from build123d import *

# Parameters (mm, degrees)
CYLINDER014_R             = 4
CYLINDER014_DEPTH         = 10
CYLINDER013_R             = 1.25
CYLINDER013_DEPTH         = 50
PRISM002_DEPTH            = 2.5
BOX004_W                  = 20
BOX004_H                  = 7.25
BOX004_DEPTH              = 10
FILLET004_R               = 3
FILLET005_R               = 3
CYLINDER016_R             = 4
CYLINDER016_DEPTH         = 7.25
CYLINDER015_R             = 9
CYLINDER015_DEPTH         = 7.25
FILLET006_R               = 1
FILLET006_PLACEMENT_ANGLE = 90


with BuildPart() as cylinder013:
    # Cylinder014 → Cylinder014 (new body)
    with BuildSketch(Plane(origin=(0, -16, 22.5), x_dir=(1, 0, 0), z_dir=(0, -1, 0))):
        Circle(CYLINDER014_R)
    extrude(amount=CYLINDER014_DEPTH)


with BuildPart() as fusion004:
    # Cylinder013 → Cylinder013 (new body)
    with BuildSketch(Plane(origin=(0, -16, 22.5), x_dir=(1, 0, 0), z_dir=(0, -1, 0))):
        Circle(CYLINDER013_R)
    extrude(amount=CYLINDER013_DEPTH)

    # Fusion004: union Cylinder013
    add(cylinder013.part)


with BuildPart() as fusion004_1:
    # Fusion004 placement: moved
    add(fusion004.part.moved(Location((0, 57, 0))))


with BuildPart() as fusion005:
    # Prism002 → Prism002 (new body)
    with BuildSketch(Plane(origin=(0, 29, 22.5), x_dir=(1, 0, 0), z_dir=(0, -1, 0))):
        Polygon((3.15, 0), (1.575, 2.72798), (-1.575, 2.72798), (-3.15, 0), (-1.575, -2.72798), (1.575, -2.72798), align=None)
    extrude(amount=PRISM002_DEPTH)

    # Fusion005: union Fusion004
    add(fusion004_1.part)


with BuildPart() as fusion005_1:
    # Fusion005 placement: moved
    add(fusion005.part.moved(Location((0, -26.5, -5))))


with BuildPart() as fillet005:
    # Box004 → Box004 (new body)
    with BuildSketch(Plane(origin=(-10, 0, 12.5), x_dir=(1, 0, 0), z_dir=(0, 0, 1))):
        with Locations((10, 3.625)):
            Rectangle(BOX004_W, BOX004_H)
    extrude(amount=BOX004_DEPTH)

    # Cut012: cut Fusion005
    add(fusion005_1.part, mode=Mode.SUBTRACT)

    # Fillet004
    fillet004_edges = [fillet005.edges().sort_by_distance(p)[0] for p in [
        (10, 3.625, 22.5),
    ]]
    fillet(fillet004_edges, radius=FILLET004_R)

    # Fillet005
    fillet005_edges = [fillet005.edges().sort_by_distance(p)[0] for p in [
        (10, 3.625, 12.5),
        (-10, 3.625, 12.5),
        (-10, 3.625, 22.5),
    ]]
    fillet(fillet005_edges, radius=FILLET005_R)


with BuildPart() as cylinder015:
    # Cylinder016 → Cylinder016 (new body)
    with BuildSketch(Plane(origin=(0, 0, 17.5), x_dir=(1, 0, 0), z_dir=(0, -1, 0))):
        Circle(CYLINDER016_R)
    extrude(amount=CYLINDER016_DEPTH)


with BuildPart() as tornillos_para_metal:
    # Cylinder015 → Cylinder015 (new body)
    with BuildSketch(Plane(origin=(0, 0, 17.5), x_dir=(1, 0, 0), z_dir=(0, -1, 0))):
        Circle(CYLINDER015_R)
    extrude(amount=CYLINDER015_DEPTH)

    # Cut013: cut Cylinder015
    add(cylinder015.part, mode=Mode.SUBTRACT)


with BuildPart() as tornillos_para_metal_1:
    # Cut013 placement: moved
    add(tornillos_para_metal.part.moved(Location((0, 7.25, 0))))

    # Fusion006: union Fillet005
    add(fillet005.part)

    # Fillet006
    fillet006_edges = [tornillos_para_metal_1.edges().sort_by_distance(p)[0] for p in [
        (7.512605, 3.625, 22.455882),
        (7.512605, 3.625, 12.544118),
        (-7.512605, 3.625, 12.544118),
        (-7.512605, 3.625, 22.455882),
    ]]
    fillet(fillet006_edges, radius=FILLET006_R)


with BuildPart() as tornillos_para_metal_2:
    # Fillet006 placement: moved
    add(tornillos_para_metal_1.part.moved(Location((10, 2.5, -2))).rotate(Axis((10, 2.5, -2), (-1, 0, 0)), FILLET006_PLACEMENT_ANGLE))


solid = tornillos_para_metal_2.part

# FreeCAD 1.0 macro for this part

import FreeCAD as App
import Part
import Sketcher

V = App.Vector
Q = App.Units.Quantity


def edges_at(feature, points):
    """Names of the edges that pass closest to the given points."""
    edges = feature.Shape.Edges
    near = lambda p: min(range(len(edges)), key=lambda i: edges[i].distToShape(Part.Vertex(*p))[0])
    return sorted({f"Edge{near(p) + 1}" for p in points})


def add_polygon(sketch, points):
    """Adds a closed chain of lines whose ends are joined by coincident constraints."""
    first, n = sketch.GeometryCount, len(points)
    for a, b in zip(points, points[1:] + points[:1]):
        sketch.addGeometry(Part.LineSegment(App.Vector(*a, 0), App.Vector(*b, 0)), False)
    for i in range(n):
        sketch.addConstraint(Sketcher.Constraint("Coincident", first + i, 2, first + (i + 1) % n, 1))

doc = App.newDocument("Part")
params = doc.addObject("Spreadsheet::Sheet", "Params")
for row, (alias, value) in enumerate([
    ("sketch1_diameter", "8 mm"),
    ("pad1_length", "10 mm"),
    ("sketch2_diameter", "2.5 mm"),
    ("pad2_length", "50 mm"),
    ("sketch3_width", "3.15 mm"),
    ("pad3_length", "2.5 mm"),
    ("sketch4_width", "20 mm"),
    ("sketch4_height", "7.25 mm"),
    ("pad4_length", "10 mm"),
    ("fillet_radius", "3 mm"),
    ("fillet2_radius", "3 mm"),
    ("sketch5_diameter", "8 mm"),
    ("pad5_length", "7.25 mm"),
    ("sketch6_diameter", "18 mm"),
    ("pad6_length", "7.25 mm"),
    ("fillet3_radius", "1 mm"),
], start=1):
    params.set(f"A{row}", alias)
    params.set(f"B{row}", "=" + value)
    params.setAlias(f"B{row}", alias)

body = doc.addObject("PartDesign::Body", "Body")

# Sketch on XZ plane
sketch1 = body.newObject("Sketcher::SketchObject", "Sketch")
sketch1.AttachmentSupport = (doc.getObject("XZ_Plane"), [""])
sketch1.MapMode = "FlatFace"
sketch1.AttachmentOffset = App.Placement(V(0, 0, 16), App.Rotation())
sketch1.addGeometry(Part.Circle(V(0, 22.5, 0), V(0, 0, 1), 4), False)
sketch1.addConstraint(Sketcher.Constraint("PointOnObject", 0, 3, -2))
sketch1.addConstraint(Sketcher.Constraint("Diameter", 0, 8.0))
sketch1.addConstraint(Sketcher.Constraint("DistanceY", -1, 1, 0, 3, 22.5))
sketch1.setExpression("Constraints[1]", "Params.sketch1_diameter")
pad1 = body.newObject("PartDesign::Pad", "Pad")
pad1.Profile = sketch1
pad1.setExpression("Length", "Params.pad1_length")
body2 = doc.addObject("PartDesign::Body", "Body001")

# Sketch on XZ plane
sketch2 = body2.newObject("Sketcher::SketchObject", "Sketch001")
sketch2.AttachmentSupport = (doc.getObject("XZ_Plane001"), [""])
sketch2.MapMode = "FlatFace"
sketch2.AttachmentOffset = App.Placement(V(0, 0, 16), App.Rotation())
sketch2.addGeometry(Part.Circle(V(0, 22.5, 0), V(0, 0, 1), 1.25), False)
sketch2.addConstraint(Sketcher.Constraint("PointOnObject", 0, 3, -2))
sketch2.addConstraint(Sketcher.Constraint("Diameter", 0, 2.5))
sketch2.addConstraint(Sketcher.Constraint("DistanceY", -1, 1, 0, 3, 22.5))
sketch2.setExpression("Constraints[1]", "Params.sketch2_diameter")
pad2 = body2.newObject("PartDesign::Pad", "Pad001")
pad2.Profile = sketch2
pad2.setExpression("Length", "Params.pad2_length")
doc.recompute()

boolean = body2.newObject("PartDesign::Boolean", "Boolean")
boolean.Type = "Fuse"
boolean.addObjects([body])
body3 = doc.addObject("PartDesign::Body", "Body002")
doc.recompute()

body2.Placement = App.Placement(V(0, 57, 0), App.Rotation(V(0, 0, 1), 0))
boolean2 = body3.newObject("PartDesign::Boolean", "Boolean001")
boolean2.Type = "Fuse"
boolean2.addObjects([body2])
body4 = doc.addObject("PartDesign::Body", "Body003")

# Sketch on XZ plane
sketch3 = body4.newObject("Sketcher::SketchObject", "Sketch002")
sketch3.AttachmentSupport = (doc.getObject("XZ_Plane003"), [""])
sketch3.MapMode = "FlatFace"
sketch3.AttachmentOffset = App.Placement(V(0, 0, -29), App.Rotation())
add_polygon(sketch3, [(3.15, 22.5), (1.575, 25.22798), (-1.575, 25.22798), (-3.15, 22.5), (-1.575, 19.77202), (1.575, 19.77202)])  # lines 0-5
sketch3.addConstraint(Sketcher.Constraint("Horizontal", 1))
sketch3.addConstraint(Sketcher.Constraint("Horizontal", 4))
sketch3.addConstraint(Sketcher.Constraint("Symmetric", 2, 2, 5, 2, -2))
sketch3.addConstraint(Sketcher.Constraint("Parallel", 0, 3))
sketch3.addConstraint(Sketcher.Constraint("Parallel", 2, 5))
sketch3.addConstraint(Sketcher.Constraint("Vertical", 1, 2, 3, 2))
sketch3.addConstraint(Sketcher.Constraint("Vertical", 0, 2, 4, 2))
sketch3.addConstraint(Sketcher.Constraint("Angle", 0, Q("120 deg")))
sketch3.addConstraint(Sketcher.Constraint("DistanceX", 1, 2, 1, 1, 3.15))
sketch3.addConstraint(Sketcher.Constraint("DistanceY", -1, 1, 2, 2, 22.5))
sketch3.addConstraint(Sketcher.Constraint("DistanceX", 2, 2, 5, 2, 6.3))
sketch3.setExpression("Constraints[14]", "Params.sketch3_width")
pad3 = body4.newObject("PartDesign::Pad", "Pad002")
pad3.Profile = sketch3
pad3.setExpression("Length", "Params.pad3_length")
doc.recompute()

boolean3 = body4.newObject("PartDesign::Boolean", "Boolean002")
boolean3.Type = "Fuse"
boolean3.addObjects([body3])
body5 = doc.addObject("PartDesign::Body", "Body004")
doc.recompute()

body4.Placement = App.Placement(V(0, -26.5, -5), App.Rotation(V(0, 0, 1), 0))
boolean4 = body5.newObject("PartDesign::Boolean", "Boolean003")
boolean4.Type = "Fuse"
boolean4.addObjects([body4])
body6 = doc.addObject("PartDesign::Body", "Body005")

# Sketch on XY plane
sketch4 = body6.newObject("Sketcher::SketchObject", "Sketch003")
sketch4.AttachmentSupport = (doc.getObject("XY_Plane005"), [""])
sketch4.MapMode = "FlatFace"
sketch4.AttachmentOffset = App.Placement(V(0, 0, 12.5), App.Rotation())
add_polygon(sketch4, [(-10, 7.25), (-10, 0), (10, 0), (10, 7.25)])  # lines 0-3
sketch4.addConstraint(Sketcher.Constraint("Vertical", 0))
sketch4.addConstraint(Sketcher.Constraint("Horizontal", 1))
sketch4.addConstraint(Sketcher.Constraint("Vertical", 2))
sketch4.addConstraint(Sketcher.Constraint("Horizontal", 3))
sketch4.addConstraint(Sketcher.Constraint("Symmetric", 0, 2, 1, 2, -1, 1))
sketch4.addConstraint(Sketcher.Constraint("DistanceX", 1, 1, 1, 2, 20.0))
sketch4.addConstraint(Sketcher.Constraint("DistanceY", 0, 2, 0, 1, 7.25))
sketch4.setExpression("Constraints[9]", "Params.sketch4_width")
sketch4.setExpression("Constraints[10]", "Params.sketch4_height")
pad4 = body6.newObject("PartDesign::Pad", "Pad003")
pad4.Profile = sketch4
pad4.setExpression("Length", "Params.pad4_length")
doc.recompute()

boolean5 = body6.newObject("PartDesign::Boolean", "Boolean004")
boolean5.Type = "Cut"
boolean5.addObjects([body5])
doc.recompute()

fillet = body6.newObject("PartDesign::Fillet", "Fillet")
fillet.Base = (boolean5, edges_at(boolean5, [(10, 3.625, 22.5)]))
fillet.setExpression("Radius", "Params.fillet_radius")
doc.recompute()

fillet2 = body6.newObject("PartDesign::Fillet", "Fillet001")
fillet2.Base = (fillet, edges_at(fillet, [(10, 3.625, 12.5), (-10, 3.625, 12.5), (-10, 3.625, 22.5)]))
fillet2.setExpression("Radius", "Params.fillet2_radius")
body7 = doc.addObject("PartDesign::Body", "Body006")

# Sketch on XZ plane
sketch5 = body7.newObject("Sketcher::SketchObject", "Sketch004")
sketch5.AttachmentSupport = (doc.getObject("XZ_Plane006"), [""])
sketch5.MapMode = "FlatFace"
sketch5.addGeometry(Part.Circle(V(0, 17.5, 0), V(0, 0, 1), 4), False)
sketch5.addConstraint(Sketcher.Constraint("PointOnObject", 0, 3, -2))
sketch5.addConstraint(Sketcher.Constraint("Diameter", 0, 8.0))
sketch5.addConstraint(Sketcher.Constraint("DistanceY", -1, 1, 0, 3, 17.5))
sketch5.setExpression("Constraints[1]", "Params.sketch5_diameter")
pad5 = body7.newObject("PartDesign::Pad", "Pad004")
pad5.Profile = sketch5
pad5.setExpression("Length", "Params.pad5_length")
body8 = doc.addObject("PartDesign::Body", "Body007")

# Sketch on XZ plane
sketch6 = body8.newObject("Sketcher::SketchObject", "Sketch005")
sketch6.AttachmentSupport = (doc.getObject("XZ_Plane007"), [""])
sketch6.MapMode = "FlatFace"
sketch6.addGeometry(Part.Circle(V(0, 17.5, 0), V(0, 0, 1), 9), False)
sketch6.addConstraint(Sketcher.Constraint("PointOnObject", 0, 3, -2))
sketch6.addConstraint(Sketcher.Constraint("Diameter", 0, 18.0))
sketch6.addConstraint(Sketcher.Constraint("DistanceY", -1, 1, 0, 3, 17.5))
sketch6.setExpression("Constraints[1]", "Params.sketch6_diameter")
pad6 = body8.newObject("PartDesign::Pad", "Pad005")
pad6.Profile = sketch6
pad6.setExpression("Length", "Params.pad6_length")
doc.recompute()

boolean6 = body8.newObject("PartDesign::Boolean", "Boolean005")
boolean6.Type = "Cut"
boolean6.addObjects([body7])
body9 = doc.addObject("PartDesign::Body", "Body008")
doc.recompute()

body8.Placement = App.Placement(V(0, 7.25, 0), App.Rotation(V(0, 0, 1), 0))
boolean7 = body9.newObject("PartDesign::Boolean", "Boolean006")
boolean7.Type = "Fuse"
boolean7.addObjects([body8])
doc.recompute()

boolean8 = body9.newObject("PartDesign::Boolean", "Boolean007")
boolean8.Type = "Fuse"
boolean8.addObjects([body6])
doc.recompute()

fillet3 = body9.newObject("PartDesign::Fillet", "Fillet002")
fillet3.Base = (boolean8, edges_at(boolean8, [
    (7.513, 3.625, 22.456),
    (7.513, 3.625, 12.544),
    (-7.513, 3.625, 12.544),
    (-7.513, 3.625, 22.456),
]))
fillet3.setExpression("Radius", "Params.fillet3_radius")
body10 = doc.addObject("PartDesign::Body", "Body009")
doc.recompute()

body9.Placement = App.Placement(V(10, 2.5, -2), App.Rotation(V(-1, 0, 0), 90))
boolean9 = body10.newObject("PartDesign::Boolean", "Boolean008")
boolean9.Type = "Fuse"
boolean9.addObjects([body9])

doc.recompute()
